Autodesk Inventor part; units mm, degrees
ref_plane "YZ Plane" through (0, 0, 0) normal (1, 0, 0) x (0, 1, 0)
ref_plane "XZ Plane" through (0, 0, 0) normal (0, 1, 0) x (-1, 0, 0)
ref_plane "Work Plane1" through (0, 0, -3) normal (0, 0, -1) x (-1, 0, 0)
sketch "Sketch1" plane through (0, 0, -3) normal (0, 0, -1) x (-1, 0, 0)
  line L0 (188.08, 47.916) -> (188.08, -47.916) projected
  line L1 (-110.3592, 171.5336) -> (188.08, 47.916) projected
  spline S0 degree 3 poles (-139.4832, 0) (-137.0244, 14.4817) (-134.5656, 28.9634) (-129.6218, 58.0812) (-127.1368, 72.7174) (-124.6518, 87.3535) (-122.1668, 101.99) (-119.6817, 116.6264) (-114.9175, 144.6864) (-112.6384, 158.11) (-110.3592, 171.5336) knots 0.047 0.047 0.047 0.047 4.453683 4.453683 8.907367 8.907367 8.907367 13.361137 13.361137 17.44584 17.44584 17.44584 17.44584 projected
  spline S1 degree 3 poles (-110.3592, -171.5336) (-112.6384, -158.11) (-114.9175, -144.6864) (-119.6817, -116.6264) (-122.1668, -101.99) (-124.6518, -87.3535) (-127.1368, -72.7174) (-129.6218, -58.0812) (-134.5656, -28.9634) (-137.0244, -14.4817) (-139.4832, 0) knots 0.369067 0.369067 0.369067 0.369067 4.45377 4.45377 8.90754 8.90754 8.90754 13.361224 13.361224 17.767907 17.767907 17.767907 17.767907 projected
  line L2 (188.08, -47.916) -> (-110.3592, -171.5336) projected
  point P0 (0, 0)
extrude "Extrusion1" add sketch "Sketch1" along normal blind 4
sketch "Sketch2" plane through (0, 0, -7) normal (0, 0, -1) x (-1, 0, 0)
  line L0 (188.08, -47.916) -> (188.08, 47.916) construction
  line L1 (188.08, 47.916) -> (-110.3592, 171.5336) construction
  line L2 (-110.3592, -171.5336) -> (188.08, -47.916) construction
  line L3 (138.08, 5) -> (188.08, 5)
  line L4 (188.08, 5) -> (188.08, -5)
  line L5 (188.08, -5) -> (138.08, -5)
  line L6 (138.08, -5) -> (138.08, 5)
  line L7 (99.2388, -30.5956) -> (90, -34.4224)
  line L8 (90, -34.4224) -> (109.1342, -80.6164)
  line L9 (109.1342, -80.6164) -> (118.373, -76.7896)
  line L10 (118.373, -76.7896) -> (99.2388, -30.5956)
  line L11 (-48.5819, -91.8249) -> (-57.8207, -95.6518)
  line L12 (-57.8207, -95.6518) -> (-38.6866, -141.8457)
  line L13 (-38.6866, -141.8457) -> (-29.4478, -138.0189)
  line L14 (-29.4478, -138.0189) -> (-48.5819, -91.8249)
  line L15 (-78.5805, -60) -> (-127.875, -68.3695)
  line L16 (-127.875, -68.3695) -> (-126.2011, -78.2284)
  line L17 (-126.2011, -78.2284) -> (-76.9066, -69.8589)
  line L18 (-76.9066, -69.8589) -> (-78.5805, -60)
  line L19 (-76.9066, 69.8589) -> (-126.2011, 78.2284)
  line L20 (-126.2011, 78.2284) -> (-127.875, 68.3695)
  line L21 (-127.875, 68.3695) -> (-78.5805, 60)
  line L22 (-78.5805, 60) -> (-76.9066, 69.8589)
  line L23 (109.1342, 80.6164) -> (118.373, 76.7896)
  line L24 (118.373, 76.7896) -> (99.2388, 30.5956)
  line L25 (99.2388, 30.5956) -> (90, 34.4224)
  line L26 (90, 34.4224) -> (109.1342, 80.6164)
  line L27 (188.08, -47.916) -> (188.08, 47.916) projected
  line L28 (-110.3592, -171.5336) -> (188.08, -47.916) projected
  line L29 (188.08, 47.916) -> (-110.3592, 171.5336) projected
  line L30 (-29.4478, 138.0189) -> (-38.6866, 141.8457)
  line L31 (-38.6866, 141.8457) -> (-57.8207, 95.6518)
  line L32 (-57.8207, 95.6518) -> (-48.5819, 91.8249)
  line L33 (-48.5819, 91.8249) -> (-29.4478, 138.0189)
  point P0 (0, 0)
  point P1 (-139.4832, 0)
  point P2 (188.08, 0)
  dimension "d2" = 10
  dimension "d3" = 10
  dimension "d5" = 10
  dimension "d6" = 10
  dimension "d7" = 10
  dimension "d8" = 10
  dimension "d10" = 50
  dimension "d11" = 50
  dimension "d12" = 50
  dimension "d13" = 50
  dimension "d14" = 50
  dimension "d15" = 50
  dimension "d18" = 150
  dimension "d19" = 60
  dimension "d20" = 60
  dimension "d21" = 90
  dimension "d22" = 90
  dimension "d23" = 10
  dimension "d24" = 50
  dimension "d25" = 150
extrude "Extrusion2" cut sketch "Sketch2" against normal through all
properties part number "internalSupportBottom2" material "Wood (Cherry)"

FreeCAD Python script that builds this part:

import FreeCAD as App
import Part
import Sketcher

V = App.Vector
Q = App.Units.Quantity


def add_polygon(sketch, points):
    """Adds a closed chain of lines whose ends are joined by coincident constraints."""
    first, n = sketch.GeometryCount, len(points)
    for a, b in zip(points, points[1:] + points[:1]):
        sketch.addGeometry(Part.LineSegment(App.Vector(*a, 0), App.Vector(*b, 0)), False)
    for i in range(n):
        sketch.addConstraint(Sketcher.Constraint("Coincident", first + i, 2, first + (i + 1) % n, 1))

doc = App.newDocument("Part")
body = doc.addObject("PartDesign::Body", "Body")

# Sketch on XY plane
sketch1 = body.newObject("Sketcher::SketchObject", "Sketch")
sketch1.AttachmentSupport = (doc.getObject("XY_Plane"), [""])
sketch1.MapMode = "FlatFace"
sketch1.AttachmentOffset = App.Placement(V(0, 0, -3), App.Rotation())
sketch1.addGeometry([
    Part.LineSegment(V(-188.08, -47.916, 0), V(-188.08, 47.916, 0)),  # 0
    Part.LineSegment(V(-188.08, 47.916, 0), V(110.3592, 171.5336, 0)),  # 1
    Part.BSplineCurve([V(139.4832, 0, 0), V(137.0244, 14.4817, 0), V(134.5656, 28.9634, 0), V(129.6218, 58.0812, 0), V(127.1368, 72.7174, 0), V(124.6518, 87.3535, 0), V(122.1668, 101.99, 0), V(119.6817, 116.6264, 0), V(114.9175, 144.6864, 0), V(112.6384, 158.11, 0), V(110.3592, 171.5336, 0)], [4, 2, 3, 2, 4], [0.047, 4.453683, 8.907367, 13.361137, 17.44584], False, 3, [1, 1, 1, 1, 1, 1, 1, 1, 1, 1, 1], False),  # 2
    Part.BSplineCurve([V(110.3592, -171.5336, 0), V(112.6384, -158.11, 0), V(114.9175, -144.6864, 0), V(119.6817, -116.6264, 0), V(122.1668, -101.99, 0), V(124.6518, -87.3535, 0), V(127.1368, -72.7174, 0), V(129.6218, -58.0812, 0), V(134.5656, -28.9634, 0), V(137.0244, -14.4817, 0), V(139.4832, 0, 0)], [4, 2, 3, 2, 4], [0.369067, 4.45377, 8.90754, 13.361224, 17.767907], False, 3, [1, 1, 1, 1, 1, 1, 1, 1, 1, 1, 1], False),  # 3
    Part.LineSegment(V(110.3592, -171.5336, 0), V(-188.08, -47.916, 0)),  # 4
], False)
sketch1.addConstraint([
    Sketcher.Constraint("Block", 2),
    Sketcher.Constraint("Block", 3),
    Sketcher.Constraint("Coincident", 0, 2, 1, 1),
    Sketcher.Constraint("Coincident", 1, 2, 2, 2),
    Sketcher.Constraint("Coincident", 3, 1, 4, 1),
    Sketcher.Constraint("Coincident", 4, 2, 0, 1),
    Sketcher.Constraint("Vertical", 0),
    Sketcher.Constraint("Equal", 1, 4),
    Sketcher.Constraint("Angle", 1, Q("22.5 deg")),
    Sketcher.Constraint("DistanceY", 0, 1, 0, 2, Q("95.832 mm")),
])
pad1 = body.newObject("PartDesign::Pad", "Pad")
pad1.Profile = sketch1
pad1.Length = 4
pad1.Reversed = True

# Sketch on XY plane
sketch2 = body.newObject("Sketcher::SketchObject", "Sketch001")
sketch2.AttachmentSupport = (doc.getObject("XY_Plane"), [""])
sketch2.MapMode = "FlatFace"
sketch2.AttachmentOffset = App.Placement(V(0, 0, -7), App.Rotation())
add_polygon(sketch2, [(48.5819, 91.8249), (29.447768, 138.018978), (38.6866, 141.8457), (57.8207, 95.6518)])  # lines 0-3
add_polygon(sketch2, [(-99.2388, 30.5956), (-118.373, 76.7896), (-109.1342, 80.6164), (-90, 34.4224)])  # lines 4-7
add_polygon(sketch2, [(38.6866, -141.8457), (29.4478, -138.0189), (48.5819, -91.8249), (57.8207, -95.6518)])  # lines 8-11
add_polygon(sketch2, [(-109.1342, -80.6164), (-118.373, -76.7896), (-99.2388, -30.5956), (-90, -34.4224)])  # lines 12-15
add_polygon(sketch2, [(-188.08, 5), (-138.08, 5), (-138.08, -5), (-188.08, -5)])  # lines 16-19
add_polygon(sketch2, [(76.9066, -69.8589), (78.5805, -60), (127.875, -68.3695), (126.2011, -78.2284)])  # lines 20-23
add_polygon(sketch2, [(78.5805, 60), (76.9066, 69.8589), (126.2011, 78.2284), (127.875, 68.3695)])  # lines 24-27
sketch2.addConstraint([
    Sketcher.Constraint("Horizontal", 16),
    Sketcher.Constraint("Vertical", 17),
    Sketcher.Constraint("Horizontal", 18),
    Sketcher.Constraint("Vertical", 19),
    Sketcher.Constraint("DistanceX", 16, 1, 16, 2, Q("50 mm")),
    Sketcher.Constraint("DistanceY", 17, 2, 17, 1, Q("10 mm")),
    Sketcher.Constraint("Distance", 0, Q("50 mm")),
    Sketcher.Constraint("Distance", 1, Q("10 mm")),
    Sketcher.Constraint("Distance", 2, Q("50 mm")),
    Sketcher.Constraint("Distance", 3, Q("10 mm")),
    Sketcher.Constraint("Distance", 4, Q("50 mm")),
    Sketcher.Constraint("Distance", 5, Q("10 mm")),
    Sketcher.Constraint("Distance", 6, Q("50 mm")),
    Sketcher.Constraint("Distance", 7, Q("10 mm")),
    Sketcher.Constraint("Distance", 8, Q("10 mm")),
    Sketcher.Constraint("Distance", 9, Q("50 mm")),
    Sketcher.Constraint("Distance", 10, Q("10 mm")),
    Sketcher.Constraint("Distance", 11, Q("50 mm")),
    Sketcher.Constraint("Distance", 12, Q("10 mm")),
    Sketcher.Constraint("Distance", 13, Q("50 mm")),
    Sketcher.Constraint("Distance", 14, Q("10 mm")),
    Sketcher.Constraint("Distance", 15, Q("50 mm")),
    Sketcher.Constraint("Distance", 20, Q("10 mm")),
    Sketcher.Constraint("Distance", 21, Q("50 mm")),
    Sketcher.Constraint("Distance", 22, Q("10 mm")),
    Sketcher.Constraint("Distance", 23, Q("50 mm")),
    Sketcher.Constraint("Distance", 24, Q("10 mm")),
    Sketcher.Constraint("Distance", 25, Q("50 mm")),
    Sketcher.Constraint("Distance", 26, Q("10 mm")),
    Sketcher.Constraint("Distance", 27, Q("50 mm")),
    Sketcher.Constraint("DistanceX", 6, 2, -1, 1, Q("90 mm")),
    Sketcher.Constraint("DistanceX", 14, 2, -1, 1, Q("90 mm")),
    Sketcher.Constraint("DistanceY", 20, 2, -1, 1, Q("60 mm")),
    Sketcher.Constraint("DistanceY", -1, 1, 27, 2, Q("60 mm")),
    Sketcher.Constraint("DistanceY", -1, 1, 16, 2, Q("5 mm")),
    Sketcher.Constraint("DistanceX", 16, 2, -1, 1, Q("138.08 mm")),
    Sketcher.Constraint("DistanceX", 1, 2, 24, 2, Q("38.22 mm")),
    Sketcher.Constraint("DistanceY", 24, 2, 0, 2, Q("68.16 mm")),
    Sketcher.Constraint("DistanceY", -1, 1, 0, 2, Q("138.019 mm")),
    Sketcher.Constraint("DistanceX", -1, 1, 3, 2, Q("48.582 mm")),
    Sketcher.Constraint("DistanceY", -1, 1, 3, 2, Q("91.825 mm")),
    Sketcher.Constraint("DistanceX", 4, 2, -1, 1, Q("118.373 mm")),
    Sketcher.Constraint("DistanceY", 8, 2, -1, 1, Q("138.019 mm")),
    Sketcher.Constraint("DistanceX", -1, 1, 9, 2, Q("48.582 mm")),
    Sketcher.Constraint("DistanceY", 9, 2, -1, 1, Q("91.825 mm")),
    Sketcher.Constraint("DistanceX", 12, 2, -1, 1, Q("118.373 mm")),
    Sketcher.Constraint("DistanceX", -1, 1, 21, 2, Q("127.875 mm")),
    Sketcher.Constraint("DistanceX", -1, 1, 22, 2, Q("126.201 mm")),
    Sketcher.Constraint("DistanceX", -1, 1, 25, 2, Q("126.201 mm")),
    Sketcher.Constraint("DistanceY", 0, 2, 1, 2, Q("3.827 mm")),
    Sketcher.Constraint("DistanceX", 5, 2, 0, 2, Q("138.582 mm")),
    Sketcher.Constraint("DistanceY", 10, 2, 9, 2, Q("3.827 mm")),
    Sketcher.Constraint("DistanceY", 11, 2, 6, 2, Q("176.268 mm")),
    Sketcher.Constraint("DistanceY", 12, 2, 6, 2, Q("111.212 mm")),
    Sketcher.Constraint("DistanceY", 12, 2, 13, 2, Q("46.194 mm")),
    Sketcher.Constraint("DistanceX", 11, 2, 20, 2, Q("39.894 mm")),
])
pocket1 = body.newObject("PartDesign::Pocket", "Pocket")
pocket1.Profile = sketch2
pocket1.Type = "ThroughAll"
pocket1.Reversed = True

doc.recompute()
